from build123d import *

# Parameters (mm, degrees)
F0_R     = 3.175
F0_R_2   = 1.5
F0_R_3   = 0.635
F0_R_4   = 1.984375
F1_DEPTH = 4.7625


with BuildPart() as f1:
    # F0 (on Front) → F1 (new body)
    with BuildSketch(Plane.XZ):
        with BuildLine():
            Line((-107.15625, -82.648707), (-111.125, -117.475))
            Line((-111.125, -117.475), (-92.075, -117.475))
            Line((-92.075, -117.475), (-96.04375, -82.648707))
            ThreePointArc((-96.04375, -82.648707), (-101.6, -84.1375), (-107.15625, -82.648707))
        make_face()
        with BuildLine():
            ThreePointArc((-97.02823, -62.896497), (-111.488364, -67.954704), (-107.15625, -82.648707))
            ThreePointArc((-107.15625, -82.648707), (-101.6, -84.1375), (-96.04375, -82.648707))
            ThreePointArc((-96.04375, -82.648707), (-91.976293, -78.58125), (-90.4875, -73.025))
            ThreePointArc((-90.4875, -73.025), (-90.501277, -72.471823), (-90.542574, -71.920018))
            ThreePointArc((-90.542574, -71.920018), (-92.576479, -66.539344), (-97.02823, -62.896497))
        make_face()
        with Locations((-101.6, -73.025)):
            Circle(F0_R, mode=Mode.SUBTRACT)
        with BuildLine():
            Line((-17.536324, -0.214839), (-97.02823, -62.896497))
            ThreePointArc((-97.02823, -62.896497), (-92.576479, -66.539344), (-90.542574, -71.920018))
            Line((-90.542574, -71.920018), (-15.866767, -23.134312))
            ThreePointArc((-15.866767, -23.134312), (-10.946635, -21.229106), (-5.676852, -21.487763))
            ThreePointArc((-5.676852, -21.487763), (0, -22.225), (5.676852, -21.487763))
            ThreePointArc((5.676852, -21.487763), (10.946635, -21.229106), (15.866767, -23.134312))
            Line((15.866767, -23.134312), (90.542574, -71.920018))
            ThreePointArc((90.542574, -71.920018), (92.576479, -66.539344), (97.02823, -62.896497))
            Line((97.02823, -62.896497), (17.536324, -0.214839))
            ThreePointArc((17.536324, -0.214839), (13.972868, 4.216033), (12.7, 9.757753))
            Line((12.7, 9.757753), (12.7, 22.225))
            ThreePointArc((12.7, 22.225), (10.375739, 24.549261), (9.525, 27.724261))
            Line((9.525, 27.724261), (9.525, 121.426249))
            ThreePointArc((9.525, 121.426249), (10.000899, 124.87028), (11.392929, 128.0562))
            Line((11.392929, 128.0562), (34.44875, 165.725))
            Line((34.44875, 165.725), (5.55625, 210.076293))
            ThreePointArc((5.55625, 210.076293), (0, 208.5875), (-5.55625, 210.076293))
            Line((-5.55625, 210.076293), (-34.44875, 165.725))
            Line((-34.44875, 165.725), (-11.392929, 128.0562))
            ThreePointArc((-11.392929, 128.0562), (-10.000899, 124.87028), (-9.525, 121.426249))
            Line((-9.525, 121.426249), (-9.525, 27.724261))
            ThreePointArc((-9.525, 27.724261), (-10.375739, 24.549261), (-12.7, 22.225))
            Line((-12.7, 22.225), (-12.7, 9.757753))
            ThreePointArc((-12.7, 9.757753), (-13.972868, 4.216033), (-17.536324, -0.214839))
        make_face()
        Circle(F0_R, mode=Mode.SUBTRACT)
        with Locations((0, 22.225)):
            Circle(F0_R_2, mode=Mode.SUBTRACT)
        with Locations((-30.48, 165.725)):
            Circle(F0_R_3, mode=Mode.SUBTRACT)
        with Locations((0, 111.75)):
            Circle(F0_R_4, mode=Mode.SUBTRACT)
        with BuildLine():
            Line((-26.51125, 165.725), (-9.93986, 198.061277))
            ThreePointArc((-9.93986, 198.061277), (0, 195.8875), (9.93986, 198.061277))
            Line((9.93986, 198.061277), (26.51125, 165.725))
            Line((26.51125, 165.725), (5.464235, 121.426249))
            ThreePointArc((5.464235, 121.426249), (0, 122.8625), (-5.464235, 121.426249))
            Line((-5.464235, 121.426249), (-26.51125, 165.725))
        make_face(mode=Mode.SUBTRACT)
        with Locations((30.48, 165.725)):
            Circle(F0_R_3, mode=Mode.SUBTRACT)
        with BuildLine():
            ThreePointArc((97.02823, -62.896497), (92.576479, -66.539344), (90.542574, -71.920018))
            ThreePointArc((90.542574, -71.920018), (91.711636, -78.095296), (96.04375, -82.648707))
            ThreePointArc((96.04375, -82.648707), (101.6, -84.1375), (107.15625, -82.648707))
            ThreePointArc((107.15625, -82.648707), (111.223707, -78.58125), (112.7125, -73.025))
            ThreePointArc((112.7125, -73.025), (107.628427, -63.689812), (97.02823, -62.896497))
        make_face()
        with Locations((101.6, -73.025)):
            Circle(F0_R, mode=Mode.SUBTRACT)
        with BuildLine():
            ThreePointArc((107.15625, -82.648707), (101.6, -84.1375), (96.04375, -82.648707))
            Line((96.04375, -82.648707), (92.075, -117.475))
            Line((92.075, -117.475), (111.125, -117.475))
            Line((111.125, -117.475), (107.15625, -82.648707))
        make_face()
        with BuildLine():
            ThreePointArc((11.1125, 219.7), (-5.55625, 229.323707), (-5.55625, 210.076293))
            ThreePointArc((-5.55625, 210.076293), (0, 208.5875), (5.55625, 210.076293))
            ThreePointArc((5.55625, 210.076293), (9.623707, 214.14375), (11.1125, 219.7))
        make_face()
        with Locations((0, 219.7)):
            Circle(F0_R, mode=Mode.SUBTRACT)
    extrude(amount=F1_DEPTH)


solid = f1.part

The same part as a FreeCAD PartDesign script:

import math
import FreeCAD as App
import Part
import Sketcher

V = App.Vector
Q = App.Units.Quantity

doc = App.newDocument("Part")
params = doc.addObject("Spreadsheet::Sheet", "Params")
for row, (alias, value) in enumerate([
    ("sketch1_radius", "0.4999999 in"),
    ("sketch1_radius2", "0.4999999 in"),
    ("sketch1_radius3", "0.4999998 in"),
    ("sketch1_radius4", "0.4999998 in"),
    ("sketch1_diameter", "0.25 in"),
    ("pad1_length", "0.1875 in"),
], start=1):
    params.set(f"A{row}", alias)
    params.set(f"B{row}", "=" + value)
    params.setAlias(f"B{row}", alias)

body = doc.addObject("PartDesign::Body", "Body")

sketch1 = doc.addObject("Sketcher::SketchObject", "Sketch")
body.addObject(sketch1)
sketch1.AttachmentSupport = (doc.XZ_Plane, [""])
sketch1.MapMode = "FlatFace"
sketch1.addGeometry([
    Part.LineSegment(V(-107.15625, -82.648707, 0), V(-111.125, -117.475, 0)),
    Part.LineSegment(V(-111.125, -117.475, 0), V(-92.075, -117.475, 0)),
    Part.LineSegment(V(-92.075, -117.475, 0), V(-96.04375, -82.648707, 0)),
    Part.ArcOfCircle(Part.Circle(V(-101.600001, -73.024999, 0), V(0, 0, 1), 11.112501), math.radians(-59.999998), math.radians(-0.000004)),
    Part.ArcOfCircle(Part.Circle(V(-101.599949, -73.024998, 0), V(0, 0, 1), 11.112449), math.radians(-0.00001), math.radians(5.706707)),
    Part.LineSegment(V(-90.542574, -71.920018, 0), V(-15.866767, -23.134312, 0)),
    Part.ArcOfCircle(Part.Circle(V(-8.920768, -33.766483, 0), V(0, 0, 1), 12.699998), math.radians(75.20114), math.radians(123.15659)),
    Part.ArcOfCircle(Part.Circle(V(0, -0.000012, 0), V(0, 0, 1), 22.224988), math.radians(-104.798862), math.radians(-75.201138)),
    Part.ArcOfCircle(Part.Circle(V(8.920768, -33.766483, 0), V(0, 0, 1), 12.699998), math.radians(56.84341), math.radians(104.79886)),
    Part.LineSegment(V(15.866767, -23.134312, 0), V(90.542574, -71.920018, 0)),
    Part.ArcOfCircle(Part.Circle(V(101.600002, -73.024999, 0), V(0, 0, 1), 11.112502), math.radians(174.293317), math.radians(239.999993)),
    Part.LineSegment(V(96.04375, -82.648707, 0), V(92.075, -117.475, 0)),
    Part.LineSegment(V(92.075, -117.475, 0), V(111.125, -117.475, 0)),
    Part.LineSegment(V(111.125, -117.475, 0), V(107.15625, -82.648707, 0)),
    Part.ArcOfCircle(Part.Circle(V(101.599999, -73.024999, 0), V(0, 0, 1), 11.112501), math.radians(-59.999998), math.radians(-0.000004)),
    Part.ArcOfCircle(Part.Circle(V(101.600001, -73.024999, 0), V(0, 0, 1), 11.112499), math.radians(-0.000005), math.radians(114.293311)),
    Part.LineSegment(V(97.02823, -62.896497, 0), V(17.536324, -0.214839, 0)),
    Part.ArcOfCircle(Part.Circle(V(25.399996, 9.757752, 0), V(0, 0, 1), 12.699996), math.radians(179.999993), math.radians(231.743213)),
    Part.LineSegment(V(12.7, 9.757753, 0), V(12.7, 22.225, 0)),
    Part.ArcOfCircle(Part.Circle(V(15.875001, 27.724262, 0), V(0, 0, 1), 6.350001), math.radians(-179.999993), math.radians(-120.000004)),
    Part.LineSegment(V(9.525, 27.724261, 0), V(9.525, 121.426249, 0)),
    Part.ArcOfCircle(Part.Circle(V(22.225012, 121.426247, 0), V(0, 0, 1), 12.700012), math.radians(148.530602), math.radians(179.999989)),
    Part.LineSegment(V(11.392929, 128.0562, 0), V(34.44875, 165.725, 0)),
    Part.LineSegment(V(34.44875, 165.725, 0), V(5.55625, 210.076293, 0)),
    Part.ArcOfCircle(Part.Circle(V(-0.000001, 219.700001, 0), V(0, 0, 1), 11.112501), math.radians(-59.999998), math.radians(-0.000004)),
    Part.ArcOfCircle(Part.Circle(V(0, 219.7, 0), V(0, 0, 1), 11.1125), math.radians(0), math.radians(239.999998)),
    Part.LineSegment(V(-5.55625, 210.076293, 0), V(-34.44875, 165.725, 0)),
    Part.LineSegment(V(-34.44875, 165.725, 0), V(-11.392929, 128.0562, 0)),
    Part.ArcOfCircle(Part.Circle(V(-22.225012, 121.426247, 0), V(0, 0, 1), 12.700012), math.radians(0.000011), math.radians(31.469398)),
    Part.LineSegment(V(-9.525, 121.426249, 0), V(-9.525, 27.724261, 0)),
    Part.ArcOfCircle(Part.Circle(V(-15.875001, 27.724262, 0), V(0, 0, 1), 6.350001), math.radians(-59.999996), math.radians(-0.000007)),
    Part.LineSegment(V(-12.7, 22.225, 0), V(-12.7, 9.757753, 0)),
    Part.ArcOfCircle(Part.Circle(V(-25.399996, 9.757752, 0), V(0, 0, 1), 12.699996), math.radians(-51.743213), math.radians(0.000007)),
    Part.LineSegment(V(-17.536324, -0.214839, 0), V(-97.02823, -62.896497, 0)),
    Part.ArcOfCircle(Part.Circle(V(-101.6, -73.025, 0), V(0, 0, 1), 11.1125), math.radians(65.706696), math.radians(239.999997)),
    Part.Circle(V(-101.6, -73.025, 0), V(0, 0, 1), 3.175),
    Part.Circle(V(0, 0, 0), V(0, 0, 1), 3.175),
    Part.Circle(V(0, 22.225, 0), V(0, 0, 1), 1.5),
    Part.Circle(V(101.6, -73.025, 0), V(0, 0, 1), 3.175),
    Part.Circle(V(0, 111.75, 0), V(0, 0, 1), 1.984375),
    Part.Circle(V(-30.48, 165.725, 0), V(0, 0, 1), 0.635),
    Part.LineSegment(V(-5.464235, 121.426249, 0), V(-26.51125, 165.725, 0)),
    Part.LineSegment(V(-26.51125, 165.725, 0), V(-9.93986, 198.061277, 0)),
    Part.ArcOfCircle(Part.Circle(V(0, 219.699999, 0), V(0, 0, 1), 23.812499), math.radians(-114.671932), math.radians(-65.328068)),
    Part.LineSegment(V(9.93986, 198.061277, 0), V(26.51125, 165.725, 0)),
    Part.LineSegment(V(26.51125, 165.725, 0), V(5.464235, 121.426249, 0)),
    Part.ArcOfCircle(Part.Circle(V(0, 111.749999, 0), V(0, 0, 1), 11.112501), math.radians(60.546328), math.radians(119.453672)),
    Part.Circle(V(0, 219.7, 0), V(0, 0, 1), 3.175),
    Part.Circle(V(30.48, 165.725, 0), V(0, 0, 1), 0.635),
], False)
sketch1.addConstraint([
    Sketcher.Constraint("Coincident", 0, 2, 1, 1),
    Sketcher.Constraint("Coincident", 1, 2, 2, 1),
    Sketcher.Constraint("Coincident", 2, 2, 3, 1),
    Sketcher.Constraint("Coincident", 3, 2, 4, 1),
    Sketcher.Constraint("Coincident", 4, 2, 5, 1),
    Sketcher.Constraint("Coincident", 5, 2, 6, 2),
    Sketcher.Constraint("Coincident", 6, 1, 7, 1),
    Sketcher.Constraint("Coincident", 7, 2, 8, 2),
    Sketcher.Constraint("Coincident", 8, 1, 9, 1),
    Sketcher.Constraint("Coincident", 9, 2, 10, 1),
    Sketcher.Constraint("Coincident", 10, 2, 11, 1),
    Sketcher.Constraint("Coincident", 11, 2, 12, 1),
    Sketcher.Constraint("Coincident", 12, 2, 13, 1),
    Sketcher.Constraint("Coincident", 13, 2, 14, 1),
    Sketcher.Constraint("Coincident", 14, 2, 15, 1),
    Sketcher.Constraint("Coincident", 15, 2, 16, 1),
    Sketcher.Constraint("Coincident", 16, 2, 17, 2),
    Sketcher.Constraint("Coincident", 17, 1, 18, 1),
    Sketcher.Constraint("Coincident", 18, 2, 19, 2),
    Sketcher.Constraint("Coincident", 19, 1, 20, 1),
    Sketcher.Constraint("Coincident", 20, 2, 21, 2),
    Sketcher.Constraint("Coincident", 21, 1, 22, 1),
    Sketcher.Constraint("Coincident", 22, 2, 23, 1),
    Sketcher.Constraint("Coincident", 23, 2, 24, 1),
    Sketcher.Constraint("Coincident", 24, 2, 25, 1),
    Sketcher.Constraint("Coincident", 25, 2, 26, 1),
    Sketcher.Constraint("Coincident", 26, 2, 27, 1),
    Sketcher.Constraint("Coincident", 27, 2, 28, 2),
    Sketcher.Constraint("Coincident", 28, 1, 29, 1),
    Sketcher.Constraint("Coincident", 29, 2, 30, 2),
    Sketcher.Constraint("Coincident", 30, 1, 31, 1),
    Sketcher.Constraint("Coincident", 31, 2, 32, 2),
    Sketcher.Constraint("Coincident", 32, 1, 33, 1),
    Sketcher.Constraint("Coincident", 33, 2, 34, 1),
    Sketcher.Constraint("Coincident", 34, 2, 0, 1),
    Sketcher.Constraint("Coincident", 41, 2, 42, 1),
    Sketcher.Constraint("Coincident", 42, 2, 43, 1),
    Sketcher.Constraint("Coincident", 43, 2, 44, 1),
    Sketcher.Constraint("Coincident", 44, 2, 45, 1),
    Sketcher.Constraint("Coincident", 45, 2, 46, 1),
    Sketcher.Constraint("Coincident", 46, 2, 41, 1),
    Sketcher.Constraint("Horizontal", 1),
    Sketcher.Constraint("Horizontal", 12),
    Sketcher.Constraint("Vertical", 18),
    Sketcher.Constraint("Vertical", 20),
    Sketcher.Constraint("Vertical", 29),
    Sketcher.Constraint("Vertical", 31),
    Sketcher.Constraint("Coincident", 36, 3, -1, 1),
    Sketcher.Constraint("Coincident", 14, 3, 10, 3),
    Sketcher.Constraint("Coincident", 15, 3, 10, 3),
    Sketcher.Constraint("Coincident", 25, 3, 24, 3),
    Sketcher.Constraint("Coincident", 34, 3, 3, 3),
    Sketcher.Constraint("Coincident", 35, 3, 3, 3),
    Sketcher.Constraint("Coincident", 38, 3, 10, 3),
    Sketcher.Constraint("Coincident", 43, 3, 24, 3),
    Sketcher.Constraint("Coincident", 46, 3, 39, 3),
    Sketcher.Constraint("Coincident", 47, 3, 24, 3),
    Sketcher.Constraint("PointOnObject", 7, 3, -2),
    Sketcher.Constraint("PointOnObject", 24, 3, -2),
    Sketcher.Constraint("PointOnObject", 37, 3, -2),
    Sketcher.Constraint("PointOnObject", 39, 3, -2),
    Sketcher.Constraint("Radius", 6, Q("0.4999999 in")),
    Sketcher.Constraint("Radius", 8, Q("0.4999999 in")),
    Sketcher.Constraint("Radius", 17, Q("0.4999998 in")),
    Sketcher.Constraint("Radius", 32, Q("0.4999998 in")),
    Sketcher.Constraint("Diameter", 35, Q("0.25 in")),
    Sketcher.Constraint("Diameter", 36, Q("0.25 in")),
    Sketcher.Constraint("Diameter", 38, Q("0.25 in")),
    Sketcher.Constraint("Diameter", 40, Q("0.05 in")),
    Sketcher.Constraint("Diameter", 47, Q("0.25 in")),
    Sketcher.Constraint("Diameter", 48, Q("0.05 in")),
    Sketcher.Constraint("Radius", 19, Q("0.25 in")),
    Sketcher.Constraint("Radius", 30, Q("0.25 in")),
    Sketcher.Constraint("Diameter", 39, Q("0.15625 in")),
    Sketcher.Constraint("DistanceX", 3, 3, -1, 1, Q("4 in")),
    Sketcher.Constraint("DistanceX", -1, 1, 10, 3, Q("4.0000001 in")),
    Sketcher.Constraint("DistanceX", -1, 1, 17, 3, Q("0.9999998 in")),
    Sketcher.Constraint("DistanceX", 32, 3, -1, 1, Q("0.9999998 in")),
    Sketcher.Constraint("Radius", 3, Q("0.4375 in")),
    Sketcher.Constraint("Radius", 10, Q("0.4375001 in")),
    Sketcher.Constraint("Radius", 14, Q("0.4375 in")),
    Sketcher.Constraint("Radius", 24, Q("0.4375 in")),
    Sketcher.Constraint("Radius", 34, Q("0.4375 in")),
    Sketcher.Constraint("Radius", 43, Q("0.9374999 in")),
    Sketcher.Constraint("Radius", 46, Q("0.4375 in")),
    Sketcher.Constraint("DistanceX", 1, 1, 1, 2, Q("0.75 in")),
    Sketcher.Constraint("DistanceX", 12, 1, 12, 2, Q("0.75 in")),
    Sketcher.Constraint("DistanceX", 40, 3, -1, 1, Q("1.2 in")),
    Sketcher.Constraint("DistanceX", -1, 1, 48, 3, Q("1.2 in")),
    Sketcher.Constraint("Diameter", 37, Q("3 mm")),
    Sketcher.Constraint("DistanceY", 3, 3, -1, 1, Q("2.875 in")),
    Sketcher.Constraint("DistanceY", 4, 3, -1, 1, Q("2.8749999 in")),
    Sketcher.Constraint("DistanceY", 10, 3, -1, 1, Q("2.875 in")),
    Sketcher.Constraint("DistanceX", -1, 1, 19, 3, Q("0.625 in")),
    Sketcher.Constraint("DistanceX", 30, 3, -1, 1, Q("0.625 in")),
    Sketcher.Constraint("DistanceY", -1, 1, 37, 3, Q("0.875 in")),
    Sketcher.Constraint("DistanceX", 0, 2, -1, 1, Q("4.375 in")),
    Sketcher.Constraint("DistanceY", 0, 2, -1, 1, Q("4.625 in")),
    Sketcher.Constraint("DistanceX", 2, 2, -1, 1, Q("3.78125 in")),
    Sketcher.Constraint("DistanceY", 3, 2, -1, 1, Q("2.875 in")),
    Sketcher.Constraint("DistanceX", -1, 1, 10, 2, Q("3.78125 in")),
    Sketcher.Constraint("DistanceX", -1, 1, 11, 2, Q("3.625 in")),
    Sketcher.Constraint("DistanceY", 11, 2, -1, 1, Q("4.625 in")),
    Sketcher.Constraint("DistanceX", -1, 1, 13, 2, Q("4.21875 in")),
    Sketcher.Constraint("DistanceY", 14, 2, -1, 1, Q("2.875 in")),
    Sketcher.Constraint("DistanceY", -1, 1, 18, 2, Q("0.875 in")),
    Sketcher.Constraint("DistanceX", -1, 1, 23, 2, Q("0.21875 in")),
    Sketcher.Constraint("DistanceX", 25, 2, -1, 1, Q("0.21875 in")),
    Sketcher.Constraint("DistanceY", -1, 1, 30, 1, Q("0.875 in")),
    Sketcher.Constraint("DistanceX", 34, 2, -1, 1, Q("4.21875 in")),
    Sketcher.Constraint("Radius", 4, Q("11.112449 mm")),
    Sketcher.Constraint("Radius", 7, Q("22.224988 mm")),
    Sketcher.Constraint("Radius", 21, Q("12.700012 mm")),
    Sketcher.Constraint("Radius", 28, Q("12.700012 mm")),
    Sketcher.Constraint("DistanceY", 20, 1, 20, 2, Q("93.701988 mm")),
    Sketcher.Constraint("DistanceY", 29, 2, 29, 1, Q("93.701988 mm")),
    Sketcher.Constraint("DistanceY", -1, 1, 24, 3, Q("219.700001 mm")),
    Sketcher.Constraint("DistanceY", -1, 1, 39, 3, Q("111.75 mm")),
    Sketcher.Constraint("DistanceY", -1, 1, 40, 3, Q("165.725 mm")),
    Sketcher.Constraint("DistanceY", -1, 1, 48, 3, Q("165.725 mm")),
    Sketcher.Constraint("DistanceY", -1, 1, 21, 1, Q("128.0562 mm")),
    Sketcher.Constraint("DistanceY", -1, 1, 22, 2, Q("165.725 mm")),
    Sketcher.Constraint("DistanceY", -1, 1, 24, 2, Q("219.7 mm")),
    Sketcher.Constraint("DistanceY", -1, 1, 26, 2, Q("165.725 mm")),
    Sketcher.Constraint("DistanceY", -1, 1, 27, 2, Q("128.0562 mm")),
    Sketcher.Constraint("DistanceY", -1, 1, 41, 2, Q("165.725 mm")),
    Sketcher.Constraint("DistanceY", -1, 1, 44, 2, Q("165.725 mm")),
    Sketcher.Constraint("Distance", 22, Q("44.164571 mm")),
    Sketcher.Constraint("Distance", 23, Q("52.932162 mm")),
    Sketcher.Constraint("Distance", 26, Q("52.932162 mm")),
    Sketcher.Constraint("Distance", 27, Q("44.164571 mm")),
    Sketcher.Constraint("Distance", 41, Q("49.044431 mm")),
    Sketcher.Constraint("Distance", 45, Q("49.044431 mm")),
    Sketcher.Constraint("DistanceY", 18, 1, 18, 2, Q("12.467247 mm")),
    Sketcher.Constraint("DistanceY", 31, 2, 31, 1, Q("12.467247 mm")),
    Sketcher.Constraint("DistanceX", 6, 3, -1, 1, Q("8.920768 mm")),
    Sketcher.Constraint("DistanceX", -1, 1, 8, 3, Q("8.920768 mm")),
    Sketcher.Constraint("DistanceY", -1, 1, 17, 3, Q("9.757752 mm")),
    Sketcher.Constraint("DistanceY", -1, 1, 32, 3, Q("9.757752 mm")),
    Sketcher.Constraint("DistanceY", 9, 2, -1, 1, Q("71.920018 mm")),
    Sketcher.Constraint("DistanceX", -1, 1, 15, 2, Q("97.02823 mm")),
    Sketcher.Constraint("DistanceY", 16, 2, -1, 1, Q("0.214839 mm")),
    Sketcher.Constraint("DistanceY", -1, 1, 19, 1, Q("27.724261 mm")),
    Sketcher.Constraint("DistanceY", -1, 1, 28, 1, Q("121.426249 mm")),
    Sketcher.Constraint("DistanceY", 32, 1, -1, 1, Q("0.214839 mm")),
    Sketcher.Constraint("DistanceX", 33, 2, -1, 1, Q("97.02823 mm")),
    Sketcher.Constraint("DistanceX", 41, 2, -1, 1, Q("26.51125 mm")),
    Sketcher.Constraint("DistanceX", 42, 2, -1, 1, Q("9.93986 mm")),
    Sketcher.Constraint("DistanceX", -1, 1, 43, 2, Q("9.93986 mm")),
    Sketcher.Constraint("DistanceX", -1, 1, 44, 2, Q("26.51125 mm")),
    Sketcher.Constraint("Distance", 5, Q("89.199334 mm")),
    Sketcher.Constraint("Distance", 9, Q("89.199334 mm")),
    Sketcher.Constraint("DistanceY", 6, 3, -1, 1, Q("33.766483 mm")),
    Sketcher.Constraint("DistanceX", 4, 2, -1, 1, Q("90.542574 mm")),
    Sketcher.Constraint("DistanceX", 6, 1, -1, 1, Q("5.676852 mm")),
    Sketcher.Constraint("DistanceX", -1, 1, 7, 2, Q("5.676852 mm")),
])
sketch1.setExpression("Constraints[61]", "Params.sketch1_radius")
sketch1.setExpression("Constraints[62]", "Params.sketch1_radius2")
sketch1.setExpression("Constraints[63]", "Params.sketch1_radius3")
sketch1.setExpression("Constraints[64]", "Params.sketch1_radius4")
sketch1.setExpression("Constraints[65]", "Params.sketch1_diameter")
pad1 = doc.addObject("PartDesign::Pad", "Pad")
body.addObject(pad1)
pad1.Profile = sketch1
pad1.setExpression("Length", "Params.pad1_length")

doc.recompute()
